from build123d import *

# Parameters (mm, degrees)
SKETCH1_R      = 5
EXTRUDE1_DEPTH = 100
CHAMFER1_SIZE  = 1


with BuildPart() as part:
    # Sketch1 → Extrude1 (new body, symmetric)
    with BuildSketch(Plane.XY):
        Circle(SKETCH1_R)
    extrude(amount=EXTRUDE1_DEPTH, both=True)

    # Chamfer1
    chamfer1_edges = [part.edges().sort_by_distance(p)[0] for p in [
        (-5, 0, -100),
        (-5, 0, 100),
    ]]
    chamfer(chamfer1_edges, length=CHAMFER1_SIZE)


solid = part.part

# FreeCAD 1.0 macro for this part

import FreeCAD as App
import Part
import Sketcher

V = App.Vector


def edges_at(feature, points):
    """Names of the edges that pass closest to the given points."""
    edges = feature.Shape.Edges
    near = lambda p: min(range(len(edges)), key=lambda i: edges[i].distToShape(Part.Vertex(*p))[0])
    return sorted({f"Edge{near(p) + 1}" for p in points})

doc = App.newDocument("Part")
body = doc.addObject("PartDesign::Body", "Body")

# Sketch on XY plane
sketch1 = body.newObject("Sketcher::SketchObject", "Sketch")
sketch1.AttachmentSupport = (doc.getObject("XY_Plane"), [""])
sketch1.MapMode = "FlatFace"
sketch1.addGeometry(Part.Circle(V(0, 0, 0), V(0, 0, 1), 5), False)
sketch1.addConstraint([
    Sketcher.Constraint("Coincident", 0, 3, -1, 1),
    Sketcher.Constraint("Diameter", 0, 10.0),
])
pad1 = body.newObject("PartDesign::Pad", "Pad")
pad1.Profile = sketch1
pad1.Length = 200
pad1.Midplane = True
doc.recompute()

chamfer = body.newObject("PartDesign::Chamfer", "Chamfer")
chamfer.Base = (pad1, edges_at(pad1, [(-5, 0, -100), (-5, 0, 100)]))
chamfer.Size = 1

doc.recompute()
